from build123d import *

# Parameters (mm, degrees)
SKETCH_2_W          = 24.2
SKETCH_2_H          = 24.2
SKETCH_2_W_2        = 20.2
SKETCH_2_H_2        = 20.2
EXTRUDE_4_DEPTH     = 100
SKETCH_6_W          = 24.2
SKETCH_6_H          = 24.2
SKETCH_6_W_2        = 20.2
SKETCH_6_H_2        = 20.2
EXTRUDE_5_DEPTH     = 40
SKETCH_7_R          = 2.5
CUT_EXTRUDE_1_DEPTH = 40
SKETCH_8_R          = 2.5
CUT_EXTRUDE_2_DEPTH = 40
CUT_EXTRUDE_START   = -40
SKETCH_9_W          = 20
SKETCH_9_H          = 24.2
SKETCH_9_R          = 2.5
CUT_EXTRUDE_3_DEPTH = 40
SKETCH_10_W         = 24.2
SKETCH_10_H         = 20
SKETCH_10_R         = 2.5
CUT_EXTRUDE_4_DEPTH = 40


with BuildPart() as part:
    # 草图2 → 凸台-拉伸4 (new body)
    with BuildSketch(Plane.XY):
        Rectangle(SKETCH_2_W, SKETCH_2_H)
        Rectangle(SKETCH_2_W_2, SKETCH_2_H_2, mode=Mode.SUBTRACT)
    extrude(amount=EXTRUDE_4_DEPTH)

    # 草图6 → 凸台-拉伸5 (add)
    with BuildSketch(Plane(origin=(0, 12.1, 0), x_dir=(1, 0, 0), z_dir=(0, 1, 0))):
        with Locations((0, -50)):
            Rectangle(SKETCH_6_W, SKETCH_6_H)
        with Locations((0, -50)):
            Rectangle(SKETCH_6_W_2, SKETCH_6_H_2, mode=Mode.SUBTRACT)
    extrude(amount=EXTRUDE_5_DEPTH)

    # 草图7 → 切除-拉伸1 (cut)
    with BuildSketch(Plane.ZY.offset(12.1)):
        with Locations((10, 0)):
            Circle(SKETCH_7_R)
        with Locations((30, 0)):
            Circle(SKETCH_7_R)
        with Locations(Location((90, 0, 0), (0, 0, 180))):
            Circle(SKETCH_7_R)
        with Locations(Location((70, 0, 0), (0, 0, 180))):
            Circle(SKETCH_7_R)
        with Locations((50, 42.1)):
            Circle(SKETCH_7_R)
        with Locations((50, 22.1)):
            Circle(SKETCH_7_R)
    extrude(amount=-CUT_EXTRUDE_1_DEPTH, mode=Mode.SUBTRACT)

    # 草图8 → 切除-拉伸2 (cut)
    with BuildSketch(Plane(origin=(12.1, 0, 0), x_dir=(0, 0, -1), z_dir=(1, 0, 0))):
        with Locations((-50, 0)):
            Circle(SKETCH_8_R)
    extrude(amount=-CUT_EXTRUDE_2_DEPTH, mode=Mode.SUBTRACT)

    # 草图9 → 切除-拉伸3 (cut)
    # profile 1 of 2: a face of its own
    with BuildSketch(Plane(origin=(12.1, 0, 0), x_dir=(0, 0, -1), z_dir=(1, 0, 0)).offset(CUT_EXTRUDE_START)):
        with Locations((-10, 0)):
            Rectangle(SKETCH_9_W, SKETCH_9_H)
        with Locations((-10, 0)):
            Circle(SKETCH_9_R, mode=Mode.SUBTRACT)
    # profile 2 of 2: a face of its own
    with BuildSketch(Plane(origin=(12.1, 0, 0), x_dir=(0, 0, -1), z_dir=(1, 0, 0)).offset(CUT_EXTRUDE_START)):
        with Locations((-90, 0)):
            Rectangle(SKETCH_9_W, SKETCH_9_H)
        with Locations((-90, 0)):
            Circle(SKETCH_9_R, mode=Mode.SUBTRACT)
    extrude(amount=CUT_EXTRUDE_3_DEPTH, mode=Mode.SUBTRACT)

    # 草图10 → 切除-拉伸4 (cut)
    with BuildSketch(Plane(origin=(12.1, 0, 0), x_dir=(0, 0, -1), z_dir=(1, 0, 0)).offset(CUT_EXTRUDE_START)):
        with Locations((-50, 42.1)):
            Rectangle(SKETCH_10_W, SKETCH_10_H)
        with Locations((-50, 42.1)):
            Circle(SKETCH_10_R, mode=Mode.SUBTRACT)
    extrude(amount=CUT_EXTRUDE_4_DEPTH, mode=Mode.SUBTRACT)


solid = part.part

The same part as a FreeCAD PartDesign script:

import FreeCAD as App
import Part
import Sketcher
from FreeCAD import Vector


def add_polygon(sketch, points):
    """Adds a closed chain of lines whose ends are joined by coincident constraints."""
    first, n = sketch.GeometryCount, len(points)
    for a, b in zip(points, points[1:] + points[:1]):
        sketch.addGeometry(Part.LineSegment(App.Vector(*a, 0), App.Vector(*b, 0)), False)
    for i in range(n):
        sketch.addConstraint(Sketcher.Constraint("Coincident", first + i, 2, first + (i + 1) % n, 1))

doc = App.newDocument("Part")
body = doc.addObject("PartDesign::Body", "Body")

sketch1 = body.newObject("Sketcher::SketchObject", "Sketch")
sketch1.AttachmentSupport = (doc.getObject("XY_Plane"), [""])
sketch1.MapMode = "FlatFace"
add_polygon(sketch1, [(-12, 12), (-12, -12), (12, -12), (12, 12)])
add_polygon(sketch1, [(10, -10), (-10, -10), (-10, 10), (10, 10)])
sketch1.addConstraint(Sketcher.Constraint("Vertical", 0))
sketch1.addConstraint(Sketcher.Constraint("Horizontal", 1))
sketch1.addConstraint(Sketcher.Constraint("Vertical", 2))
sketch1.addConstraint(Sketcher.Constraint("Horizontal", 3))
sketch1.addConstraint(Sketcher.Constraint("Horizontal", 4))
sketch1.addConstraint(Sketcher.Constraint("Vertical", 5))
sketch1.addConstraint(Sketcher.Constraint("Horizontal", 6))
sketch1.addConstraint(Sketcher.Constraint("Vertical", 7))
sketch1.addConstraint(Sketcher.Constraint("Symmetric", 0, 2, 2, 2, -1, 1))
sketch1.addConstraint(Sketcher.Constraint("Symmetric", 4, 2, 6, 2, -1, 1))
sketch1.addConstraint(Sketcher.Constraint("Equal", 3, 0))
sketch1.addConstraint(Sketcher.Constraint("Equal", 6, 5))
sketch1.addConstraint(Sketcher.Constraint("DistanceX", 1, 1, 1, 2, 24.2))
sketch1.addConstraint(Sketcher.Constraint("DistanceX", 4, 2, 4, 1, 20.2))
pad1 = body.newObject("PartDesign::Pad", "Pad")
pad1.Profile = sketch1
pad1.Length = 100

sketch2 = body.newObject("Sketcher::SketchObject", "Sketch001")
sketch2.AttachmentSupport = (doc.getObject("XZ_Plane"), [""])
sketch2.MapMode = "FlatFace"
sketch2.AttachmentOffset = App.Placement(Vector(0, 0, -12.1), App.Rotation())
add_polygon(sketch2, [(-12, 38), (-12, 62), (12, 62), (12, 38)])
add_polygon(sketch2, [(10, 60), (-10, 60), (-10, 40), (10, 40)])
sketch2.addConstraint(Sketcher.Constraint("Vertical", 0))
sketch2.addConstraint(Sketcher.Constraint("Horizontal", 1))
sketch2.addConstraint(Sketcher.Constraint("Vertical", 2))
sketch2.addConstraint(Sketcher.Constraint("Horizontal", 3))
sketch2.addConstraint(Sketcher.Constraint("Horizontal", 4))
sketch2.addConstraint(Sketcher.Constraint("Vertical", 5))
sketch2.addConstraint(Sketcher.Constraint("Horizontal", 6))
sketch2.addConstraint(Sketcher.Constraint("Vertical", 7))
sketch2.addConstraint(Sketcher.Constraint("Equal", 3, 0))
sketch2.addConstraint(Sketcher.Constraint("Equal", 6, 5))
sketch2.addConstraint(Sketcher.Constraint("DistanceX", 1, 1, 1, 2, 24.2))
sketch2.addConstraint(Sketcher.Constraint("DistanceX", 4, 2, 4, 1, 20.2))
sketch2.addConstraint(Sketcher.Constraint("DistanceX", 0, 2, 4, 2, 2.0))
sketch2.addConstraint(Sketcher.Constraint("DistanceY", 4, 2, 0, 2, 2.0))
sketch2.addConstraint(Sketcher.Constraint("DistanceX", 0, 2, -1, 1, 12.1))
sketch2.addConstraint(Sketcher.Constraint("DistanceY", -1, 1, 0, 2, 62.1))
pad2 = body.newObject("PartDesign::Pad", "Pad001")
pad2.Profile = sketch2
pad2.Length = 40
pad2.Reversed = True

sketch3 = body.newObject("Sketcher::SketchObject", "Sketch002")
sketch3.AttachmentSupport = (doc.getObject("YZ_Plane"), [""])
sketch3.MapMode = "FlatFace"
sketch3.AttachmentOffset = App.Placement(Vector(0, 0, -12.1), App.Rotation())
sketch3.addGeometry(Part.Circle(Vector(0, 10, 0), Vector(0, 0, 1), 2.5), False)
sketch3.addGeometry(Part.Circle(Vector(0, 30, 0), Vector(0, 0, 1), 2.5), False)
sketch3.addGeometry(Part.Circle(Vector(0, 90, 0), Vector(0, 0, 1), 2.5), False)
sketch3.addGeometry(Part.Circle(Vector(0, 70, 0), Vector(0, 0, 1), 2.5), False)
sketch3.addGeometry(Part.Circle(Vector(42.1, 50, 0), Vector(0, 0, 1), 2.5), False)
sketch3.addGeometry(Part.Circle(Vector(22.1, 50, 0), Vector(0, 0, 1), 2.5), False)
sketch3.addConstraint(Sketcher.Constraint("Equal", 0, 1))
sketch3.addConstraint(Sketcher.Constraint("Equal", 1, 2))
sketch3.addConstraint(Sketcher.Constraint("Equal", 2, 3))
sketch3.addConstraint(Sketcher.Constraint("Equal", 3, 4))
sketch3.addConstraint(Sketcher.Constraint("Equal", 4, 5))
sketch3.addConstraint(Sketcher.Constraint("PointOnObject", 0, 3, -2))
sketch3.addConstraint(Sketcher.Constraint("PointOnObject", 1, 3, -2))
sketch3.addConstraint(Sketcher.Constraint("PointOnObject", 2, 3, -2))
sketch3.addConstraint(Sketcher.Constraint("PointOnObject", 3, 3, -2))
sketch3.addConstraint(Sketcher.Constraint("Horizontal", 4, 3, 5, 3))
sketch3.addConstraint(Sketcher.Constraint("Diameter", 0, 5.0))
sketch3.addConstraint(Sketcher.Constraint("DistanceY", -1, 1, 0, 3, 10.0))
sketch3.addConstraint(Sketcher.Constraint("DistanceY", -1, 1, 1, 3, 30.0))
sketch3.addConstraint(Sketcher.Constraint("DistanceY", -1, 1, 2, 3, 90.0))
sketch3.addConstraint(Sketcher.Constraint("DistanceY", -1, 1, 3, 3, 70.0))
sketch3.addConstraint(Sketcher.Constraint("DistanceY", -1, 1, 4, 3, 50.0))
sketch3.addConstraint(Sketcher.Constraint("DistanceX", 5, 3, 4, 3, 20.0))
sketch3.addConstraint(Sketcher.Constraint("DistanceX", -1, 1, 4, 3, 42.1))
pocket1 = body.newObject("PartDesign::Pocket", "Pocket")
pocket1.Profile = sketch3
pocket1.Length = 40
pocket1.Reversed = True

sketch4 = body.newObject("Sketcher::SketchObject", "Sketch003")
sketch4.AttachmentSupport = (doc.getObject("YZ_Plane"), [""])
sketch4.MapMode = "FlatFace"
sketch4.AttachmentOffset = App.Placement(Vector(0, 0, 12.1), App.Rotation())
sketch4.addGeometry(Part.Circle(Vector(0, 50, 0), Vector(0, 0, 1), 2.5), False)
sketch4.addConstraint(Sketcher.Constraint("PointOnObject", 0, 3, -2))
sketch4.addConstraint(Sketcher.Constraint("Diameter", 0, 5.0))
sketch4.addConstraint(Sketcher.Constraint("DistanceY", -1, 1, 0, 3, 50.0))
pocket2 = body.newObject("PartDesign::Pocket", "Pocket001")
pocket2.Profile = sketch4
pocket2.Length = 40

sketch5 = body.newObject("Sketcher::SketchObject", "Sketch004")
sketch5.AttachmentSupport = (doc.getObject("YZ_Plane"), [""])
sketch5.MapMode = "FlatFace"
sketch5.AttachmentOffset = App.Placement(Vector(0, 0, -27.9), App.Rotation())
add_polygon(sketch5, [(12.1, 20), (-12.1, 20), (-12.1, 0), (12.1, 0)])
sketch5.addGeometry(Part.Circle(Vector(0, 10, 0), Vector(0, 0, 1), 2.5), False)
add_polygon(sketch5, [(12.1, 100), (-12.1, 100), (-12.1, 80), (12.1, 80)])
sketch5.addGeometry(Part.Circle(Vector(0, 90, 0), Vector(0, 0, 1), 2.5), False)
sketch5.addConstraint(Sketcher.Constraint("Horizontal", 0))
sketch5.addConstraint(Sketcher.Constraint("Vertical", 1))
sketch5.addConstraint(Sketcher.Constraint("Horizontal", 2))
sketch5.addConstraint(Sketcher.Constraint("Vertical", 3))
sketch5.addConstraint(Sketcher.Constraint("Horizontal", 5))
sketch5.addConstraint(Sketcher.Constraint("Vertical", 6))
sketch5.addConstraint(Sketcher.Constraint("Horizontal", 7))
sketch5.addConstraint(Sketcher.Constraint("Vertical", 8))
sketch5.addConstraint(Sketcher.Constraint("Equal", 4, 9))
sketch5.addConstraint(Sketcher.Constraint("Symmetric", 1, 2, 2, 2, -1, 1))
sketch5.addConstraint(Sketcher.Constraint("PointOnObject", 4, 3, -2))
sketch5.addConstraint(Sketcher.Constraint("PointOnObject", 9, 3, -2))
sketch5.addConstraint(Sketcher.Constraint("Vertical", 1, 2, 5, 2))
sketch5.addConstraint(Sketcher.Constraint("Vertical", 3, 2, 7, 2))
sketch5.addConstraint(Sketcher.Constraint("Equal", 3, 6))
sketch5.addConstraint(Sketcher.Constraint("Diameter", 4, 5.0))
sketch5.addConstraint(Sketcher.Constraint("DistanceY", 1, 2, 1, 1, 20.0))
sketch5.addConstraint(Sketcher.Constraint("DistanceX", 0, 2, 0, 1, 24.2))
sketch5.addConstraint(Sketcher.Constraint("DistanceY", -1, 1, 4, 3, 10.0))
sketch5.addConstraint(Sketcher.Constraint("DistanceY", -1, 1, 9, 3, 90.0))
sketch5.addConstraint(Sketcher.Constraint("DistanceY", -1, 1, 5, 2, 100.0))
pocket3 = body.newObject("PartDesign::Pocket", "Pocket002")
pocket3.Profile = sketch5
pocket3.Length = 40
pocket3.Reversed = True

sketch6 = body.newObject("Sketcher::SketchObject", "Sketch005")
sketch6.AttachmentSupport = (doc.getObject("YZ_Plane"), [""])
sketch6.MapMode = "FlatFace"
sketch6.AttachmentOffset = App.Placement(Vector(0, 0, -27.9), App.Rotation())
add_polygon(sketch6, [(52.1, 62.1), (32.1, 62.1), (32.1, 37.9), (52.1, 37.9)])
sketch6.addGeometry(Part.Circle(Vector(42.1, 50, 0), Vector(0, 0, 1), 2.5), False)
sketch6.addConstraint(Sketcher.Constraint("Horizontal", 0))
sketch6.addConstraint(Sketcher.Constraint("Vertical", 1))
sketch6.addConstraint(Sketcher.Constraint("Horizontal", 2))
sketch6.addConstraint(Sketcher.Constraint("Vertical", 3))
sketch6.addConstraint(Sketcher.Constraint("Diameter", 4, 5.0))
sketch6.addConstraint(Sketcher.Constraint("DistanceX", 0, 2, 0, 1, 20.0))
sketch6.addConstraint(Sketcher.Constraint("DistanceY", 1, 2, 1, 1, 24.2))
sketch6.addConstraint(Sketcher.Constraint("DistanceY", -1, 1, 4, 3, 50.0))
sketch6.addConstraint(Sketcher.Constraint("DistanceX", 0, 2, 4, 3, 10.0))
sketch6.addConstraint(Sketcher.Constraint("DistanceX", -1, 1, 4, 3, 42.1))
sketch6.addConstraint(Sketcher.Constraint("DistanceY", -1, 1, 0, 2, 62.1))
pocket4 = body.newObject("PartDesign::Pocket", "Pocket003")
pocket4.Profile = sketch6
pocket4.Length = 40
pocket4.Reversed = True

doc.recompute()
